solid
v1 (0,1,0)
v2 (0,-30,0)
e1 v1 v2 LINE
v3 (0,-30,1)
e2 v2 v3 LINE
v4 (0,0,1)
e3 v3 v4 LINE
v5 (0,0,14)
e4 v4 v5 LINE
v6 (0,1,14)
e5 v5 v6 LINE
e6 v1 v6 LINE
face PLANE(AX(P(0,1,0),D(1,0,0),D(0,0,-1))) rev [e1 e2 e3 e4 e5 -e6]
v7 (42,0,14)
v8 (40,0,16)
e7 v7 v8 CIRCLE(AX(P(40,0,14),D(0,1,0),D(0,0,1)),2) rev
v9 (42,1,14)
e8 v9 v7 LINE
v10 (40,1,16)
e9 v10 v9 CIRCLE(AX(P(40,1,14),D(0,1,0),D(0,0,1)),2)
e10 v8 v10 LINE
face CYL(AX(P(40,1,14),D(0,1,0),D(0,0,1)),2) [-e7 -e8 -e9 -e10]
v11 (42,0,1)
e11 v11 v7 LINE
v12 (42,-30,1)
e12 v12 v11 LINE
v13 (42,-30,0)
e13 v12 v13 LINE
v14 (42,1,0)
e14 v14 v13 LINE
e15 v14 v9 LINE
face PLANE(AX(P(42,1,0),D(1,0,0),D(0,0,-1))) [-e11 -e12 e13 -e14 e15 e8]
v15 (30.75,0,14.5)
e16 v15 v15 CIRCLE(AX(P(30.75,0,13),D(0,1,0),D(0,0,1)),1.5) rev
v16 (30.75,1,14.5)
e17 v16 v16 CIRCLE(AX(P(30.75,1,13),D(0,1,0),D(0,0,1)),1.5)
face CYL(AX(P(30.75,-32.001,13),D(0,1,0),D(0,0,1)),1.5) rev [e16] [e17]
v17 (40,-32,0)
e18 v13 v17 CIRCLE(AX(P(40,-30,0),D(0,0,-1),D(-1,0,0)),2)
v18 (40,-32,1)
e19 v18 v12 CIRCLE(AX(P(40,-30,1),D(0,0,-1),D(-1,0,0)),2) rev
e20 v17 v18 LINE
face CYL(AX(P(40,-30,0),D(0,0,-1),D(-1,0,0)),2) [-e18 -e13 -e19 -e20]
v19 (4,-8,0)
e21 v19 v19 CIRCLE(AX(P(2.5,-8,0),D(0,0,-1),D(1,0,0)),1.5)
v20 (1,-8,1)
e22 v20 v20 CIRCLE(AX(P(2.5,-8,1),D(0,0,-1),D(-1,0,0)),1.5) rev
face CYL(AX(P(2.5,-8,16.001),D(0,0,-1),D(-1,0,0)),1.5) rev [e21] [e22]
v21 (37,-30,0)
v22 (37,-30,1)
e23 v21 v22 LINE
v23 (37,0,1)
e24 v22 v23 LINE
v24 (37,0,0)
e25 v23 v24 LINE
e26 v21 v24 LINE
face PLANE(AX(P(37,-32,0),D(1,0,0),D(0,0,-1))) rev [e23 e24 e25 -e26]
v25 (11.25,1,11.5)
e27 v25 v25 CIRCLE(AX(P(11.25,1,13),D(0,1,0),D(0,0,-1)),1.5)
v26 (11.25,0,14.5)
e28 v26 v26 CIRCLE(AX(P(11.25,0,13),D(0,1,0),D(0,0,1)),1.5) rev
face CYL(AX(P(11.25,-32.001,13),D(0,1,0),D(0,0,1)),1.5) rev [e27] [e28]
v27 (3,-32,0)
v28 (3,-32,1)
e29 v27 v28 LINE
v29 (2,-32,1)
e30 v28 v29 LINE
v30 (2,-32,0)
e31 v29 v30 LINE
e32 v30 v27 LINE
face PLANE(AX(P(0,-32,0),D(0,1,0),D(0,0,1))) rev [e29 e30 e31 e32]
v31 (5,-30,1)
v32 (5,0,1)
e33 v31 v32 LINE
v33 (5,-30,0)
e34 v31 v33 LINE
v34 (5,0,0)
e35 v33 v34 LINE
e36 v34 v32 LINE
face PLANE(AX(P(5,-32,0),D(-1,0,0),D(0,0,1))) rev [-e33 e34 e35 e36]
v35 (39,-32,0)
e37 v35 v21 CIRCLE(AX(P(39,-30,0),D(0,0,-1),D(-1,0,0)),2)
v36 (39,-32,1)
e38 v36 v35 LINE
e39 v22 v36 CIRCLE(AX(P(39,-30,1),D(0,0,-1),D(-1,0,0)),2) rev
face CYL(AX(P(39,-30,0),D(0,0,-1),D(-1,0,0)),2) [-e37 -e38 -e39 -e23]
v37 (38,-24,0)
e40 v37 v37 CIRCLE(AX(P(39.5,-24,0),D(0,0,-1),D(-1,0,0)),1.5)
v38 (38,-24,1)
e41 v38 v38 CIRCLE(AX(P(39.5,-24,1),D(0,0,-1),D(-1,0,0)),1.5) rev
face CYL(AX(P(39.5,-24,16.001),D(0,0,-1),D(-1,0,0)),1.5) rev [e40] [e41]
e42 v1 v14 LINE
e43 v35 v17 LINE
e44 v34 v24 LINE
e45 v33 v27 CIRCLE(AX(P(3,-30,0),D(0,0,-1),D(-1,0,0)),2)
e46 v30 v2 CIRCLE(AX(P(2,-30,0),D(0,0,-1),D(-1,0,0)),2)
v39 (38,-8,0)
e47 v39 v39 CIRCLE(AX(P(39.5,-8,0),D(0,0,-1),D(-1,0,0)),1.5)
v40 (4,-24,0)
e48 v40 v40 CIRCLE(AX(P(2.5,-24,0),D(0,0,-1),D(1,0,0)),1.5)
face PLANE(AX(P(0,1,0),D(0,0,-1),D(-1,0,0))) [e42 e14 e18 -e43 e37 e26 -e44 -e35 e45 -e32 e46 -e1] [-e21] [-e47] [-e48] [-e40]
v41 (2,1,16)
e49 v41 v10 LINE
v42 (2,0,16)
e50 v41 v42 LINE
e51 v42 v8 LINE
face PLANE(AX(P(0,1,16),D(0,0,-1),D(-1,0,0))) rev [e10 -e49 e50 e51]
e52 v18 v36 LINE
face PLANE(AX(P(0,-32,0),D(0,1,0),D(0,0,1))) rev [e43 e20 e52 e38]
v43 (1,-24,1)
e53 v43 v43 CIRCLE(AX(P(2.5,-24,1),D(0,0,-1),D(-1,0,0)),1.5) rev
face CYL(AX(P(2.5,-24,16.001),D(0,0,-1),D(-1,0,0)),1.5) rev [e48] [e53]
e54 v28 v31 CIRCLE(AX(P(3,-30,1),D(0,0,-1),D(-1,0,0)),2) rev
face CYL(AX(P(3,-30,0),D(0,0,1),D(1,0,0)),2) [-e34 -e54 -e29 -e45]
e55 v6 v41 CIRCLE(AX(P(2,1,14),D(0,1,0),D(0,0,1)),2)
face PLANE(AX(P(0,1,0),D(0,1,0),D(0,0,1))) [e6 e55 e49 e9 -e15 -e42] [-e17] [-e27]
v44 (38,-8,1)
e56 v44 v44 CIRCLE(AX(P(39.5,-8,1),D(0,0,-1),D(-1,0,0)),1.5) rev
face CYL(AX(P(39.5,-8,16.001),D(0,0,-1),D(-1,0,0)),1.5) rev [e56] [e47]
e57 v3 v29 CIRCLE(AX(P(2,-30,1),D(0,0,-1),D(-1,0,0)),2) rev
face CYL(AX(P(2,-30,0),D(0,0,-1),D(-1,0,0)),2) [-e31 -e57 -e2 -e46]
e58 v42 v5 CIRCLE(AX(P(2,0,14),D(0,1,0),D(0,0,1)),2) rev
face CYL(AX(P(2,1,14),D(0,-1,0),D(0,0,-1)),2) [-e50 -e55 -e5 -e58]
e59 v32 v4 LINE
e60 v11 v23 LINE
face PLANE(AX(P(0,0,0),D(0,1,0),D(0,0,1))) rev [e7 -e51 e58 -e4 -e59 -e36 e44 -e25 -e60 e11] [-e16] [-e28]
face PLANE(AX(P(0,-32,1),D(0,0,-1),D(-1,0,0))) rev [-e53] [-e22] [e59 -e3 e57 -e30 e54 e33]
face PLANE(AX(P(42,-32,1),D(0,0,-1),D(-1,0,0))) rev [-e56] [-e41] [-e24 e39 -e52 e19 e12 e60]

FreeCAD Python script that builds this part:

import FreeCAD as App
import Part
import Sketcher
from FreeCAD import Vector
Q = App.Units.Quantity


def edges_at(feature, points):
    """Names of the edges that pass closest to the given points."""
    edges = feature.Shape.Edges
    near = lambda p: min(range(len(edges)), key=lambda i: edges[i].distToShape(Part.Vertex(*p))[0])
    return sorted({f"Edge{near(p) + 1}" for p in points})

doc = App.newDocument("Part")
body = doc.addObject("PartDesign::Body", "Body")

# Sketch on XZ plane
sketch1 = doc.addObject("Sketcher::SketchObject", "Sketch")
body.addObject(sketch1)
sketch1.AttachmentSupport = (doc.XZ_Plane, [""])
sketch1.MapMode = "FlatFace"
sketch1.addGeometry(Part.LineSegment(Vector(0, 0, 0), Vector(0, 16, 0)), False)
sketch1.addGeometry(Part.LineSegment(Vector(0, 16, 0), Vector(42, 16, 0)), False)
sketch1.addGeometry(Part.LineSegment(Vector(42, 16, 0), Vector(42, 0, 0)), False)
sketch1.addGeometry(Part.LineSegment(Vector(42, 0, 0), Vector(0, 0, 0)), False)
sketch1.addConstraint(Sketcher.Constraint("Coincident", 0, 2, 1, 1))
sketch1.addConstraint(Sketcher.Constraint("Coincident", 1, 2, 2, 1))
sketch1.addConstraint(Sketcher.Constraint("Coincident", 2, 2, 3, 1))
sketch1.addConstraint(Sketcher.Constraint("Coincident", 3, 2, 0, 1))
sketch1.addConstraint(Sketcher.Constraint("Vertical", 0))
sketch1.addConstraint(Sketcher.Constraint("Horizontal", 1))
sketch1.addConstraint(Sketcher.Constraint("Vertical", 2))
sketch1.addConstraint(Sketcher.Constraint("Horizontal", 3))
sketch1.addConstraint(Sketcher.Constraint("Coincident", 3, 2, -1, 1))
sketch1.addConstraint(Sketcher.Constraint("DistanceX", 1, 1, 1, 2, Q("42 mm")))
sketch1.addConstraint(Sketcher.Constraint("DistanceY", 0, 1, 0, 2, Q("16 mm")))
pad1 = doc.addObject("PartDesign::Pad", "Pad")
body.addObject(pad1)
pad1.Profile = sketch1
pad1.Length = 1
pad1.Reversed = True

# Sketch on XZ plane
sketch2 = doc.addObject("Sketcher::SketchObject", "Sketch001")
body.addObject(sketch2)
sketch2.AttachmentSupport = (doc.XZ_Plane, [""])
sketch2.MapMode = "FlatFace"
sketch2.addGeometry(Part.LineSegment(Vector(37, 1, 0), Vector(37, 0, 0)), False)
sketch2.addGeometry(Part.LineSegment(Vector(37, 0, 0), Vector(42, 0, 0)), False)
sketch2.addGeometry(Part.LineSegment(Vector(42, 0, 0), Vector(42, 1, 0)), False)
sketch2.addGeometry(Part.LineSegment(Vector(42, 1, 0), Vector(37, 1, 0)), False)
sketch2.addGeometry(Part.LineSegment(Vector(0, 1, 0), Vector(0, 0, 0)), False)
sketch2.addGeometry(Part.LineSegment(Vector(0, 0, 0), Vector(5, 0, 0)), False)
sketch2.addGeometry(Part.LineSegment(Vector(5, 0, 0), Vector(5, 1, 0)), False)
sketch2.addGeometry(Part.LineSegment(Vector(5, 1, 0), Vector(0, 1, 0)), False)
sketch2.addConstraint(Sketcher.Constraint("Coincident", 0, 2, 1, 1))
sketch2.addConstraint(Sketcher.Constraint("Coincident", 1, 2, 2, 1))
sketch2.addConstraint(Sketcher.Constraint("Coincident", 2, 2, 3, 1))
sketch2.addConstraint(Sketcher.Constraint("Coincident", 3, 2, 0, 1))
sketch2.addConstraint(Sketcher.Constraint("Coincident", 4, 2, 5, 1))
sketch2.addConstraint(Sketcher.Constraint("Coincident", 5, 2, 6, 1))
sketch2.addConstraint(Sketcher.Constraint("Coincident", 6, 2, 7, 1))
sketch2.addConstraint(Sketcher.Constraint("Coincident", 7, 2, 4, 1))
sketch2.addConstraint(Sketcher.Constraint("Vertical", 0))
sketch2.addConstraint(Sketcher.Constraint("Horizontal", 1))
sketch2.addConstraint(Sketcher.Constraint("Vertical", 2))
sketch2.addConstraint(Sketcher.Constraint("Horizontal", 3))
sketch2.addConstraint(Sketcher.Constraint("Vertical", 4))
sketch2.addConstraint(Sketcher.Constraint("Horizontal", 5))
sketch2.addConstraint(Sketcher.Constraint("Vertical", 6))
sketch2.addConstraint(Sketcher.Constraint("Horizontal", 7))
sketch2.addConstraint(Sketcher.Constraint("Coincident", 4, 2, -1, 1))
sketch2.addConstraint(Sketcher.Constraint("PointOnObject", 0, 2, -1))
sketch2.addConstraint(Sketcher.Constraint("Horizontal", 3, 2, 6, 2))
sketch2.addConstraint(Sketcher.Constraint("Equal", 3, 5))
sketch2.addConstraint(Sketcher.Constraint("DistanceX", 1, 1, 1, 2, Q("5 mm")))
sketch2.addConstraint(Sketcher.Constraint("DistanceY", 0, 2, 0, 1, Q("1 mm")))
sketch2.addConstraint(Sketcher.Constraint("DistanceX", -1, 1, 0, 2, Q("37 mm")))
pad2 = doc.addObject("PartDesign::Pad", "Pad001")
body.addObject(pad2)
pad2.Profile = sketch2
pad2.Length = 32

# Sketch on XY plane
sketch3 = doc.addObject("Sketcher::SketchObject", "Sketch002")
body.addObject(sketch3)
sketch3.AttachmentSupport = (doc.XY_Plane, [""])
sketch3.MapMode = "FlatFace"
sketch3.addGeometry(Part.Circle(Vector(39.5, -8, 0), Vector(0, 0, 1), 1.5), False)
sketch3.addConstraint(Sketcher.Constraint("Diameter", 0, Q("3 mm")))
sketch3.addConstraint(Sketcher.Constraint("DistanceY", 0, 3, -1, 1, Q("8 mm")))
sketch3.addConstraint(Sketcher.Constraint("DistanceX", -1, 1, 0, 3, Q("39.5 mm")))
pocket1 = doc.addObject("PartDesign::Pocket", "Pocket")
body.addObject(pocket1)
pocket1.Profile = sketch3
pocket1.Type = "UpToFirst"
pocket1.Reversed = True

# Sketch on XY plane
sketch4 = doc.addObject("Sketcher::SketchObject", "Sketch003")
body.addObject(sketch4)
sketch4.AttachmentSupport = (doc.XY_Plane, [""])
sketch4.MapMode = "FlatFace"
sketch4.addGeometry(Part.Circle(Vector(39.5, -24, 0), Vector(0, 0, 1), 1.5), False)
sketch4.addConstraint(Sketcher.Constraint("Diameter", 0, Q("3 mm")))
sketch4.addConstraint(Sketcher.Constraint("DistanceY", 0, 3, -1, 1, Q("24 mm")))
sketch4.addConstraint(Sketcher.Constraint("DistanceX", -1, 1, 0, 3, Q("39.5 mm")))
pocket2 = doc.addObject("PartDesign::Pocket", "Pocket001")
body.addObject(pocket2)
pocket2.Profile = sketch4
pocket2.Type = "UpToFirst"
pocket2.Reversed = True

# Sketch on XY plane
sketch5 = doc.addObject("Sketcher::SketchObject", "Sketch004")
body.addObject(sketch5)
sketch5.AttachmentSupport = (doc.XY_Plane, [""])
sketch5.MapMode = "FlatFace"
sketch5.addGeometry(Part.Circle(Vector(2.5, -24, 0), Vector(0, 0, 1), 1.5), False)
sketch5.addConstraint(Sketcher.Constraint("Diameter", 0, Q("3 mm")))
sketch5.addConstraint(Sketcher.Constraint("DistanceY", 0, 3, -1, 1, Q("24 mm")))
sketch5.addConstraint(Sketcher.Constraint("DistanceX", -1, 1, 0, 3, Q("2.5 mm")))
pocket3 = doc.addObject("PartDesign::Pocket", "Pocket002")
body.addObject(pocket3)
pocket3.Profile = sketch5
pocket3.Type = "UpToFirst"
pocket3.Reversed = True

# Sketch on XY plane
sketch6 = doc.addObject("Sketcher::SketchObject", "Sketch005")
body.addObject(sketch6)
sketch6.AttachmentSupport = (doc.XY_Plane, [""])
sketch6.MapMode = "FlatFace"
sketch6.addGeometry(Part.Circle(Vector(2.5, -8, 0), Vector(0, 0, 1), 1.5), False)
sketch6.addConstraint(Sketcher.Constraint("Diameter", 0, Q("3 mm")))
sketch6.addConstraint(Sketcher.Constraint("DistanceY", 0, 3, -1, 1, Q("8 mm")))
sketch6.addConstraint(Sketcher.Constraint("DistanceX", -1, 1, 0, 3, Q("2.5 mm")))
pocket4 = doc.addObject("PartDesign::Pocket", "Pocket003")
body.addObject(pocket4)
pocket4.Profile = sketch6
pocket4.Type = "UpToFirst"
pocket4.Reversed = True

# Sketch on XZ plane
sketch7 = doc.addObject("Sketcher::SketchObject", "Sketch006")
body.addObject(sketch7)
sketch7.AttachmentSupport = (doc.XZ_Plane, [""])
sketch7.MapMode = "FlatFace"
sketch7.AttachmentOffset = App.Placement(Vector(0, 0, -1), App.Rotation())
sketch7.addGeometry(Part.Circle(Vector(30.8, 13, 0), Vector(0, 0, 1), 1.5), False)
sketch7.addConstraint(Sketcher.Constraint("Diameter", 0, Q("3 mm")))
sketch7.addConstraint(Sketcher.Constraint("DistanceY", -1, 1, 0, 3, Q("13 mm")))
sketch7.addConstraint(Sketcher.Constraint("DistanceX", -1, 1, 0, 3, Q("30.75 mm")))
pocket5 = doc.addObject("PartDesign::Pocket", "Pocket004")
body.addObject(pocket5)
pocket5.Profile = sketch7
pocket5.Type = "UpToFirst"
pocket5.Reversed = True

# Sketch on XZ plane
sketch8 = doc.addObject("Sketcher::SketchObject", "Sketch007")
body.addObject(sketch8)
sketch8.AttachmentSupport = (doc.XZ_Plane, [""])
sketch8.MapMode = "FlatFace"
sketch8.AttachmentOffset = App.Placement(Vector(0, 0, -1), App.Rotation())
sketch8.addGeometry(Part.Circle(Vector(11.2, 13, 0), Vector(0, 0, 1), 1.5), False)
sketch8.addConstraint(Sketcher.Constraint("Diameter", 0, Q("3 mm")))
sketch8.addConstraint(Sketcher.Constraint("DistanceY", -1, 1, 0, 3, Q("13 mm")))
sketch8.addConstraint(Sketcher.Constraint("DistanceX", -1, 1, 0, 3, Q("11.25 mm")))
pocket6 = doc.addObject("PartDesign::Pocket", "Pocket005")
body.addObject(pocket6)
pocket6.Profile = sketch8
pocket6.Type = "UpToFirst"
pocket6.Reversed = True
doc.recompute()

fillet = doc.addObject("PartDesign::Fillet", "Fillet")
body.addObject(fillet)
fillet.Base = (pocket6, edges_at(pocket6, [
    (42, -32, 0.5),
    (37, -32, 0.5),
    (5, -32, 0.5),
    (0, -32, 0.5),
    (42, 0.5, 16),
    (0, 0.5, 16),
]))
fillet.Radius = 2

doc.recompute()
